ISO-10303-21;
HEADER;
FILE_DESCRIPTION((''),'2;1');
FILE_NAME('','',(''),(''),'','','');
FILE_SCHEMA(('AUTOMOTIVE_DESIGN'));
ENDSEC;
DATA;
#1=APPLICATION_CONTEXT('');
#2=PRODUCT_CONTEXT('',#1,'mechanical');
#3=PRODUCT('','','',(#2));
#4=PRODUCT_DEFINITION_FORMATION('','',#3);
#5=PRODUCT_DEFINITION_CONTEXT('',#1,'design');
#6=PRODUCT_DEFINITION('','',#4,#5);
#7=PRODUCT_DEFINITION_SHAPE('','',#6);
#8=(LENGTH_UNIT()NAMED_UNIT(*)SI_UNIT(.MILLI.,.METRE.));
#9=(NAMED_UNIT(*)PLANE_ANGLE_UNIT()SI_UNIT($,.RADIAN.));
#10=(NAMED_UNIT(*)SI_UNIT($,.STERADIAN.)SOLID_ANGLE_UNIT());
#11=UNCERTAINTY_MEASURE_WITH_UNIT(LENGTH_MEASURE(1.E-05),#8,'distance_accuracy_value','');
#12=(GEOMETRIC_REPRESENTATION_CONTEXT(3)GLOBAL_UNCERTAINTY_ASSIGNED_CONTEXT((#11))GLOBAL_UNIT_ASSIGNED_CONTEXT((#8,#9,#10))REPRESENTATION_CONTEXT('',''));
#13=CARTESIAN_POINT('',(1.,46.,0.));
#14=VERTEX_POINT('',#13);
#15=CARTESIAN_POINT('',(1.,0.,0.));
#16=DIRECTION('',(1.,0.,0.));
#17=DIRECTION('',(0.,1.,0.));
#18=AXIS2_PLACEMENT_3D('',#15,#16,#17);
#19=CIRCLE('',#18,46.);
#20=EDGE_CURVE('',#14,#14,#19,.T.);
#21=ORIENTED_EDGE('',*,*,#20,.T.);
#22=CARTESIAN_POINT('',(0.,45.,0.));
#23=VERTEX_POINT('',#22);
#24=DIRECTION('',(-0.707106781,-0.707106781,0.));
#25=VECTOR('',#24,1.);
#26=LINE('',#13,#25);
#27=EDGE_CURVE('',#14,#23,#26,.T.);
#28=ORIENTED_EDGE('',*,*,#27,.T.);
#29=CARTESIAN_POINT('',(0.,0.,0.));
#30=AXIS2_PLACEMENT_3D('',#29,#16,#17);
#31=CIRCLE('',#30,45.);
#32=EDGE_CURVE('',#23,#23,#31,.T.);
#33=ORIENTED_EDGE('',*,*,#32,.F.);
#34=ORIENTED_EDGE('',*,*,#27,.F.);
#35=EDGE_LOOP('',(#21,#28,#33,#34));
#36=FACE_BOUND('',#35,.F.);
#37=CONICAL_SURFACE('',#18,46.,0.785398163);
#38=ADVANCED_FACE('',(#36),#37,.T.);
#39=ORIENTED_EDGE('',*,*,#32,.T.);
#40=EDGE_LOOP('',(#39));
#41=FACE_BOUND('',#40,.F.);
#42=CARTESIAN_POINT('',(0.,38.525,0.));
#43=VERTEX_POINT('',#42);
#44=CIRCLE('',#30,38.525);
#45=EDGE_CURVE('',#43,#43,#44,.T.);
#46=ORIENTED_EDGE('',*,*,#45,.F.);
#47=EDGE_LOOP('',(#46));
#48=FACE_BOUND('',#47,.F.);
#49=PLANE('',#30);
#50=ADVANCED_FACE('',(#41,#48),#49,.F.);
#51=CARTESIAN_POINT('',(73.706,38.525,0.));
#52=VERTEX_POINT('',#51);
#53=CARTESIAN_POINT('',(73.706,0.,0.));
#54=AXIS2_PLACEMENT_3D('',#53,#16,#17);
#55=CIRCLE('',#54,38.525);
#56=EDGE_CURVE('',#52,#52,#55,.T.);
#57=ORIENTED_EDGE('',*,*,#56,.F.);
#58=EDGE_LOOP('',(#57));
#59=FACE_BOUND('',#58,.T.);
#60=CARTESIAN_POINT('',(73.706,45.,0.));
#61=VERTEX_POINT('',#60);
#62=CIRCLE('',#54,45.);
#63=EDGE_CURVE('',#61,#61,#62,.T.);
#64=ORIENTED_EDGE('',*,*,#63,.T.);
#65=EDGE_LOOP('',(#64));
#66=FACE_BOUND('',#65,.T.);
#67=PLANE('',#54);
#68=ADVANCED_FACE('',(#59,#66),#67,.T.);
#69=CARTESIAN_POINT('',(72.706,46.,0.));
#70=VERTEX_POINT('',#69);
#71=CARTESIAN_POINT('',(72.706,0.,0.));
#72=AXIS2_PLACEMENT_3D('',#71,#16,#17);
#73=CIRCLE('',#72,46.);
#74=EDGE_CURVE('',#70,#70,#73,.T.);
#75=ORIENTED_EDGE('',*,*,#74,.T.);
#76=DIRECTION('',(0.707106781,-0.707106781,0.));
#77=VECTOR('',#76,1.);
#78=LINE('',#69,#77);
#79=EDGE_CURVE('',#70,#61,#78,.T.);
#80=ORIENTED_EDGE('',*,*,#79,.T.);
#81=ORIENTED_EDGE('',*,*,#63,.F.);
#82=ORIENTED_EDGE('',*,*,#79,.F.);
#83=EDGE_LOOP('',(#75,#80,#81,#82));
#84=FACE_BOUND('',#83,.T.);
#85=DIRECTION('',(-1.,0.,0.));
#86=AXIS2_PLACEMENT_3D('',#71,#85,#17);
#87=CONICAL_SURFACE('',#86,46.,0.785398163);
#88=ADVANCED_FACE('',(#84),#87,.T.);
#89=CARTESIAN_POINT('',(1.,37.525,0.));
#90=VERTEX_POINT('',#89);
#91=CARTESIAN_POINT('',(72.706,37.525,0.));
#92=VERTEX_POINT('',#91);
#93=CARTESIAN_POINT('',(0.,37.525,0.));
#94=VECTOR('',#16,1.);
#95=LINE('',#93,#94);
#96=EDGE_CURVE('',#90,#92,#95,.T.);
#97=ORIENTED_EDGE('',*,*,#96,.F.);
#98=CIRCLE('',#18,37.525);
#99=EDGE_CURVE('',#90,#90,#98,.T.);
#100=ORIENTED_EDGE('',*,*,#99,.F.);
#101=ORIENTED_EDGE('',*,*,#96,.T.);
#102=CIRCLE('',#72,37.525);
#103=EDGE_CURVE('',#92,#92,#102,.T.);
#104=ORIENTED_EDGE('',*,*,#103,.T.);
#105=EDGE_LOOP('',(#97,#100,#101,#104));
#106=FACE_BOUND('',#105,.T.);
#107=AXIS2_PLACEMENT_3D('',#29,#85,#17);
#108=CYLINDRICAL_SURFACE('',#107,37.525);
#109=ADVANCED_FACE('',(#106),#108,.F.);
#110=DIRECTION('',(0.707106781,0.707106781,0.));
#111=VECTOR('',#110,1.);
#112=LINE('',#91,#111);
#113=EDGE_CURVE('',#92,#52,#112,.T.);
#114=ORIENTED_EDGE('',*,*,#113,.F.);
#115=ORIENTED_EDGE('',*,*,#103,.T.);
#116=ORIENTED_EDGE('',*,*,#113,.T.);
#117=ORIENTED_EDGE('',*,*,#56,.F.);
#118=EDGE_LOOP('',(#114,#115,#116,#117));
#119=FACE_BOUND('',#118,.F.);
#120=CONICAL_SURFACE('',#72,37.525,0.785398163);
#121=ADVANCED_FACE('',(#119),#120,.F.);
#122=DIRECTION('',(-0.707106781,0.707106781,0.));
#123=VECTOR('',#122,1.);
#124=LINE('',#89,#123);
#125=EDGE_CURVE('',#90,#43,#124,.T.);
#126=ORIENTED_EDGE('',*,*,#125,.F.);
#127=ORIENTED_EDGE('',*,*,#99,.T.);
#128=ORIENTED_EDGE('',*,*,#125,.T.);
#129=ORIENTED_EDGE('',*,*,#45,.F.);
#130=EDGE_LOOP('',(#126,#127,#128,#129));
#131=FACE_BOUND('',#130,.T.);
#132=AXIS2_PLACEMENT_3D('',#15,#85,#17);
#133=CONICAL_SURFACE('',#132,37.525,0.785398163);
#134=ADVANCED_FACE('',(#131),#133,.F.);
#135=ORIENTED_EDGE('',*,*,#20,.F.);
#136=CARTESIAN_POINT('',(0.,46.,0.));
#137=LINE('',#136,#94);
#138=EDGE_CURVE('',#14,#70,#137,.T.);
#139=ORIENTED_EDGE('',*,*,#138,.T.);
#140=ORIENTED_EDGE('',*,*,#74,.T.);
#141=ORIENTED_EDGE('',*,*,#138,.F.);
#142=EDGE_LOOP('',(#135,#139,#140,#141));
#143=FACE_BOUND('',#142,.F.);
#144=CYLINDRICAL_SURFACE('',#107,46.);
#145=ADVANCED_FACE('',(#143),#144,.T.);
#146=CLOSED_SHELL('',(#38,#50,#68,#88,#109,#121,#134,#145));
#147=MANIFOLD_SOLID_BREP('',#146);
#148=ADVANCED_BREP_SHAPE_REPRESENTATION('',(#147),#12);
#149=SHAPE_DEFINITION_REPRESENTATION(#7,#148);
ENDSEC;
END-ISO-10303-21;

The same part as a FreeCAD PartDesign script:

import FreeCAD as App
import Part
import Sketcher
Q = App.Units.Quantity


def edges_at(feature, points):
    """Names of the edges that pass closest to the given points."""
    edges = feature.Shape.Edges
    near = lambda p: min(range(len(edges)), key=lambda i: edges[i].distToShape(Part.Vertex(*p))[0])
    return sorted({f"Edge{near(p) + 1}" for p in points})

doc = App.newDocument("Part")
body = doc.addObject("PartDesign::Body", "Body")

sketch1 = body.newObject("Sketcher::SketchObject", "Sketch")
sketch1.AttachmentSupport = (doc.getObject("YZ_Plane"), [""])
sketch1.MapMode = "FlatFace"
sketch1.addGeometry([
    Part.Circle(App.Vector(0, 0, 0), App.Vector(0, 0, 1), 46),
    Part.Circle(App.Vector(0, 0, 0), App.Vector(0, 0, 1), 38),
], False)
sketch1.addConstraint([
    Sketcher.Constraint("Coincident", 0, 3, -1, 1),
    Sketcher.Constraint("Coincident", 1, 3, -1, 1),
    Sketcher.Constraint("Diameter", 0, Q("92 mm")),
    Sketcher.Constraint("Diameter", 1, Q("75.05 mm")),
])
pad1 = body.newObject("PartDesign::Pad", "Pad")
pad1.Profile = sketch1
pad1.Length = 73.706
doc.recompute()

chamfer = body.newObject("PartDesign::Chamfer", "Chamfer")
chamfer.Base = (pad1, edges_at(pad1, [
    (73.706, -46, 0),
    (73.706, -37.525, 0),
    (0, -46, 0),
    (0, -37.525, 0),
]))
chamfer.Size = 1

doc.recompute()
